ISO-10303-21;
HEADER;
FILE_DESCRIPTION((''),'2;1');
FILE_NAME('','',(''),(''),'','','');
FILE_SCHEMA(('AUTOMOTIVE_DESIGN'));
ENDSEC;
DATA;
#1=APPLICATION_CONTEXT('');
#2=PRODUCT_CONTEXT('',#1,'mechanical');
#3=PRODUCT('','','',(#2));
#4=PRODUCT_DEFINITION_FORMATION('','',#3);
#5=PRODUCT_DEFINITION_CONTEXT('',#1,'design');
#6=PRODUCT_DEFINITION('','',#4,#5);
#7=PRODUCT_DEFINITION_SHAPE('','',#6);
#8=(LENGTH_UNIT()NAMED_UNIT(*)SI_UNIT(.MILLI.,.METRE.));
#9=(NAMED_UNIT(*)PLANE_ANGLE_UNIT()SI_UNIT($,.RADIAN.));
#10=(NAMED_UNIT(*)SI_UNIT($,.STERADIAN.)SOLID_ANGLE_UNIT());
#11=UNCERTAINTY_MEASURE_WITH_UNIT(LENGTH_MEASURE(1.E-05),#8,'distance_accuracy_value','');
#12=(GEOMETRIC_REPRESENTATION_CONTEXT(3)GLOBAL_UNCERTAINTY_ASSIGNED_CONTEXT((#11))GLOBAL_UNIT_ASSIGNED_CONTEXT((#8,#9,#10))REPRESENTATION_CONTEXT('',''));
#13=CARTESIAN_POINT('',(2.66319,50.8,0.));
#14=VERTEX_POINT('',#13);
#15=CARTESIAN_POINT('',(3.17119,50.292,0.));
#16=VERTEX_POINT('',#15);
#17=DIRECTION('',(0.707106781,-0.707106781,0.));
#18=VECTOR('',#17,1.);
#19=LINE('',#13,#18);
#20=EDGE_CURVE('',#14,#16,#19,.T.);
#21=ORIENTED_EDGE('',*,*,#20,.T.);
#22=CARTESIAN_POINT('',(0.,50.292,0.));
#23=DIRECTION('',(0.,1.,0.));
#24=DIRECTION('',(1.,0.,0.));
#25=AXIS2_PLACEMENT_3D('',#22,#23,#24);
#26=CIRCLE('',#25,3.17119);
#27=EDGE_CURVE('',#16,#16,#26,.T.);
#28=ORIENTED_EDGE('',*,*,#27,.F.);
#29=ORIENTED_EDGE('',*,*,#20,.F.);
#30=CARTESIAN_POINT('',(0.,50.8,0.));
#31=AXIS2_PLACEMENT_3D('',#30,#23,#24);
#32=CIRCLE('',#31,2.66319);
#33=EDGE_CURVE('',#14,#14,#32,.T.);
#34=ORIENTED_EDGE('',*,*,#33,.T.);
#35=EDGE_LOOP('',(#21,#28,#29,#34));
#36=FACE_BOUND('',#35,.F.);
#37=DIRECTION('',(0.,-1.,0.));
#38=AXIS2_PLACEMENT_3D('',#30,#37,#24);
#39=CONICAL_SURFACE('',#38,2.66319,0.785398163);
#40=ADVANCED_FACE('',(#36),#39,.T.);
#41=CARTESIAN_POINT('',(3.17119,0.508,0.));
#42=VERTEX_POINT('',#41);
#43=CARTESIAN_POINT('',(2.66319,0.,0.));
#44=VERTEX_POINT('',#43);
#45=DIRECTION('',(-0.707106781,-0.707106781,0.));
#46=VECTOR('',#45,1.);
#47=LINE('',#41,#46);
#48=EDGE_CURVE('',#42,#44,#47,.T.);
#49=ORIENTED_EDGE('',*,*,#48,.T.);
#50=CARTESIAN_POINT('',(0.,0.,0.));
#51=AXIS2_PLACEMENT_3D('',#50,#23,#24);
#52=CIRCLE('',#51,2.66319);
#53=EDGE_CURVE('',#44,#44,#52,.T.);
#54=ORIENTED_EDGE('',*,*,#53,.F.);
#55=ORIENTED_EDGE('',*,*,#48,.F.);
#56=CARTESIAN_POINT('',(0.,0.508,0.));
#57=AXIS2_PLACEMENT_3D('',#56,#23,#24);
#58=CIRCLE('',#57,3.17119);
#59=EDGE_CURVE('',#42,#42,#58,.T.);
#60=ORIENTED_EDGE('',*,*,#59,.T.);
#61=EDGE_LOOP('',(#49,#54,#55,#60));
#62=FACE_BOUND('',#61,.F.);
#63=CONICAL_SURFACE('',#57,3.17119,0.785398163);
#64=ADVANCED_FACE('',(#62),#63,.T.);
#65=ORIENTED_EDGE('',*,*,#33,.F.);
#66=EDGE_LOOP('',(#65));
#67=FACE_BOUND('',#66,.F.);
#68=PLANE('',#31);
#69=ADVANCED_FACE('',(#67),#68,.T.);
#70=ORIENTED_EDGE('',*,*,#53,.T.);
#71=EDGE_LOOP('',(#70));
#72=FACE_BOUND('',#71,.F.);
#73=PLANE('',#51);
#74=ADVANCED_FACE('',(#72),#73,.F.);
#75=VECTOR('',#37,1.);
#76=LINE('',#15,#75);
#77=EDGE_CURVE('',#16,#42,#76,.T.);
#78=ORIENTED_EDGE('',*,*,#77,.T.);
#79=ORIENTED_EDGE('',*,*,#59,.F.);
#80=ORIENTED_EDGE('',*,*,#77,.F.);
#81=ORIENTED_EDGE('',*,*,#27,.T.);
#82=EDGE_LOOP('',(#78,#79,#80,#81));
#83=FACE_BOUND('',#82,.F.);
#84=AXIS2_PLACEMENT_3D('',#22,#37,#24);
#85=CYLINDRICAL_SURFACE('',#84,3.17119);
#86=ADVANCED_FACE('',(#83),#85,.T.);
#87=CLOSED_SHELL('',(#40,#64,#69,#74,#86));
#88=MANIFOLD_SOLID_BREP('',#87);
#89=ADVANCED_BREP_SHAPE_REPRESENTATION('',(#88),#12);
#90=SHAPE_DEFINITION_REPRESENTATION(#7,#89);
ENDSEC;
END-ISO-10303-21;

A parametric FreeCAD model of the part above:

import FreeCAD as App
import Part
import Sketcher
Q = App.Units.Quantity


def add_polygon(sketch, points):
    """Adds a closed chain of lines whose ends are joined by coincident constraints."""
    first, n = sketch.GeometryCount, len(points)
    for a, b in zip(points, points[1:] + points[:1]):
        sketch.addGeometry(Part.LineSegment(App.Vector(*a, 0), App.Vector(*b, 0)), False)
    for i in range(n):
        sketch.addConstraint(Sketcher.Constraint("Coincident", first + i, 2, first + (i + 1) % n, 1))

doc = App.newDocument("Part")
params = doc.addObject("Spreadsheet::Sheet", "Params")
for row, (alias, value) in enumerate([
    ("sketch1_height", "2 in"),
    ("sketch1_height2", "1.96 in"),
    ("revolution_angle", "360 deg"),
], start=1):
    params.set(f"A{row}", alias)
    params.set(f"B{row}", "=" + value)
    params.setAlias(f"B{row}", alias)

body = doc.addObject("PartDesign::Body", "Body")

sketch1 = doc.addObject("Sketcher::SketchObject", "Sketch")
body.addObject(sketch1)
sketch1.AttachmentSupport = (doc.XY_Plane, [""])
sketch1.MapMode = "FlatFace"
add_polygon(sketch1, [(2.66319, 0), (0, 0), (0, 50.8), (2.66319, 50.8), (3.17119, 50.292), (3.17119, 0.508)])
sketch1.addConstraint([
    Sketcher.Constraint("Horizontal", 0),
    Sketcher.Constraint("Vertical", 1),
    Sketcher.Constraint("Horizontal", 2),
    Sketcher.Constraint("Vertical", 4),
    Sketcher.Constraint("Coincident", 0, 2, -1, 1),
    Sketcher.Constraint("Perpendicular", 3, 5),
    Sketcher.Constraint("Vertical", 2, 2, 5, 2),
    Sketcher.Constraint("Equal", 3, 5),
    Sketcher.Constraint("DistanceY", 1, 1, 1, 2, Q("2 in")),
    Sketcher.Constraint("DistanceY", 4, 2, 4, 1, Q("1.96 in")),
    Sketcher.Constraint("DistanceX", 0, 2, 0, 1, 2.66319),
])
sketch1.setExpression("Constraints[14]", "Params.sketch1_height")
sketch1.setExpression("Constraints[15]", "Params.sketch1_height2")
revolution = doc.addObject("PartDesign::Revolution", "Revolution")
body.addObject(revolution)
revolution.Profile = sketch1
revolution.ReferenceAxis = (sketch1, ["V_Axis"])
revolution.setExpression("Angle", "Params.revolution_angle")

doc.recompute()
